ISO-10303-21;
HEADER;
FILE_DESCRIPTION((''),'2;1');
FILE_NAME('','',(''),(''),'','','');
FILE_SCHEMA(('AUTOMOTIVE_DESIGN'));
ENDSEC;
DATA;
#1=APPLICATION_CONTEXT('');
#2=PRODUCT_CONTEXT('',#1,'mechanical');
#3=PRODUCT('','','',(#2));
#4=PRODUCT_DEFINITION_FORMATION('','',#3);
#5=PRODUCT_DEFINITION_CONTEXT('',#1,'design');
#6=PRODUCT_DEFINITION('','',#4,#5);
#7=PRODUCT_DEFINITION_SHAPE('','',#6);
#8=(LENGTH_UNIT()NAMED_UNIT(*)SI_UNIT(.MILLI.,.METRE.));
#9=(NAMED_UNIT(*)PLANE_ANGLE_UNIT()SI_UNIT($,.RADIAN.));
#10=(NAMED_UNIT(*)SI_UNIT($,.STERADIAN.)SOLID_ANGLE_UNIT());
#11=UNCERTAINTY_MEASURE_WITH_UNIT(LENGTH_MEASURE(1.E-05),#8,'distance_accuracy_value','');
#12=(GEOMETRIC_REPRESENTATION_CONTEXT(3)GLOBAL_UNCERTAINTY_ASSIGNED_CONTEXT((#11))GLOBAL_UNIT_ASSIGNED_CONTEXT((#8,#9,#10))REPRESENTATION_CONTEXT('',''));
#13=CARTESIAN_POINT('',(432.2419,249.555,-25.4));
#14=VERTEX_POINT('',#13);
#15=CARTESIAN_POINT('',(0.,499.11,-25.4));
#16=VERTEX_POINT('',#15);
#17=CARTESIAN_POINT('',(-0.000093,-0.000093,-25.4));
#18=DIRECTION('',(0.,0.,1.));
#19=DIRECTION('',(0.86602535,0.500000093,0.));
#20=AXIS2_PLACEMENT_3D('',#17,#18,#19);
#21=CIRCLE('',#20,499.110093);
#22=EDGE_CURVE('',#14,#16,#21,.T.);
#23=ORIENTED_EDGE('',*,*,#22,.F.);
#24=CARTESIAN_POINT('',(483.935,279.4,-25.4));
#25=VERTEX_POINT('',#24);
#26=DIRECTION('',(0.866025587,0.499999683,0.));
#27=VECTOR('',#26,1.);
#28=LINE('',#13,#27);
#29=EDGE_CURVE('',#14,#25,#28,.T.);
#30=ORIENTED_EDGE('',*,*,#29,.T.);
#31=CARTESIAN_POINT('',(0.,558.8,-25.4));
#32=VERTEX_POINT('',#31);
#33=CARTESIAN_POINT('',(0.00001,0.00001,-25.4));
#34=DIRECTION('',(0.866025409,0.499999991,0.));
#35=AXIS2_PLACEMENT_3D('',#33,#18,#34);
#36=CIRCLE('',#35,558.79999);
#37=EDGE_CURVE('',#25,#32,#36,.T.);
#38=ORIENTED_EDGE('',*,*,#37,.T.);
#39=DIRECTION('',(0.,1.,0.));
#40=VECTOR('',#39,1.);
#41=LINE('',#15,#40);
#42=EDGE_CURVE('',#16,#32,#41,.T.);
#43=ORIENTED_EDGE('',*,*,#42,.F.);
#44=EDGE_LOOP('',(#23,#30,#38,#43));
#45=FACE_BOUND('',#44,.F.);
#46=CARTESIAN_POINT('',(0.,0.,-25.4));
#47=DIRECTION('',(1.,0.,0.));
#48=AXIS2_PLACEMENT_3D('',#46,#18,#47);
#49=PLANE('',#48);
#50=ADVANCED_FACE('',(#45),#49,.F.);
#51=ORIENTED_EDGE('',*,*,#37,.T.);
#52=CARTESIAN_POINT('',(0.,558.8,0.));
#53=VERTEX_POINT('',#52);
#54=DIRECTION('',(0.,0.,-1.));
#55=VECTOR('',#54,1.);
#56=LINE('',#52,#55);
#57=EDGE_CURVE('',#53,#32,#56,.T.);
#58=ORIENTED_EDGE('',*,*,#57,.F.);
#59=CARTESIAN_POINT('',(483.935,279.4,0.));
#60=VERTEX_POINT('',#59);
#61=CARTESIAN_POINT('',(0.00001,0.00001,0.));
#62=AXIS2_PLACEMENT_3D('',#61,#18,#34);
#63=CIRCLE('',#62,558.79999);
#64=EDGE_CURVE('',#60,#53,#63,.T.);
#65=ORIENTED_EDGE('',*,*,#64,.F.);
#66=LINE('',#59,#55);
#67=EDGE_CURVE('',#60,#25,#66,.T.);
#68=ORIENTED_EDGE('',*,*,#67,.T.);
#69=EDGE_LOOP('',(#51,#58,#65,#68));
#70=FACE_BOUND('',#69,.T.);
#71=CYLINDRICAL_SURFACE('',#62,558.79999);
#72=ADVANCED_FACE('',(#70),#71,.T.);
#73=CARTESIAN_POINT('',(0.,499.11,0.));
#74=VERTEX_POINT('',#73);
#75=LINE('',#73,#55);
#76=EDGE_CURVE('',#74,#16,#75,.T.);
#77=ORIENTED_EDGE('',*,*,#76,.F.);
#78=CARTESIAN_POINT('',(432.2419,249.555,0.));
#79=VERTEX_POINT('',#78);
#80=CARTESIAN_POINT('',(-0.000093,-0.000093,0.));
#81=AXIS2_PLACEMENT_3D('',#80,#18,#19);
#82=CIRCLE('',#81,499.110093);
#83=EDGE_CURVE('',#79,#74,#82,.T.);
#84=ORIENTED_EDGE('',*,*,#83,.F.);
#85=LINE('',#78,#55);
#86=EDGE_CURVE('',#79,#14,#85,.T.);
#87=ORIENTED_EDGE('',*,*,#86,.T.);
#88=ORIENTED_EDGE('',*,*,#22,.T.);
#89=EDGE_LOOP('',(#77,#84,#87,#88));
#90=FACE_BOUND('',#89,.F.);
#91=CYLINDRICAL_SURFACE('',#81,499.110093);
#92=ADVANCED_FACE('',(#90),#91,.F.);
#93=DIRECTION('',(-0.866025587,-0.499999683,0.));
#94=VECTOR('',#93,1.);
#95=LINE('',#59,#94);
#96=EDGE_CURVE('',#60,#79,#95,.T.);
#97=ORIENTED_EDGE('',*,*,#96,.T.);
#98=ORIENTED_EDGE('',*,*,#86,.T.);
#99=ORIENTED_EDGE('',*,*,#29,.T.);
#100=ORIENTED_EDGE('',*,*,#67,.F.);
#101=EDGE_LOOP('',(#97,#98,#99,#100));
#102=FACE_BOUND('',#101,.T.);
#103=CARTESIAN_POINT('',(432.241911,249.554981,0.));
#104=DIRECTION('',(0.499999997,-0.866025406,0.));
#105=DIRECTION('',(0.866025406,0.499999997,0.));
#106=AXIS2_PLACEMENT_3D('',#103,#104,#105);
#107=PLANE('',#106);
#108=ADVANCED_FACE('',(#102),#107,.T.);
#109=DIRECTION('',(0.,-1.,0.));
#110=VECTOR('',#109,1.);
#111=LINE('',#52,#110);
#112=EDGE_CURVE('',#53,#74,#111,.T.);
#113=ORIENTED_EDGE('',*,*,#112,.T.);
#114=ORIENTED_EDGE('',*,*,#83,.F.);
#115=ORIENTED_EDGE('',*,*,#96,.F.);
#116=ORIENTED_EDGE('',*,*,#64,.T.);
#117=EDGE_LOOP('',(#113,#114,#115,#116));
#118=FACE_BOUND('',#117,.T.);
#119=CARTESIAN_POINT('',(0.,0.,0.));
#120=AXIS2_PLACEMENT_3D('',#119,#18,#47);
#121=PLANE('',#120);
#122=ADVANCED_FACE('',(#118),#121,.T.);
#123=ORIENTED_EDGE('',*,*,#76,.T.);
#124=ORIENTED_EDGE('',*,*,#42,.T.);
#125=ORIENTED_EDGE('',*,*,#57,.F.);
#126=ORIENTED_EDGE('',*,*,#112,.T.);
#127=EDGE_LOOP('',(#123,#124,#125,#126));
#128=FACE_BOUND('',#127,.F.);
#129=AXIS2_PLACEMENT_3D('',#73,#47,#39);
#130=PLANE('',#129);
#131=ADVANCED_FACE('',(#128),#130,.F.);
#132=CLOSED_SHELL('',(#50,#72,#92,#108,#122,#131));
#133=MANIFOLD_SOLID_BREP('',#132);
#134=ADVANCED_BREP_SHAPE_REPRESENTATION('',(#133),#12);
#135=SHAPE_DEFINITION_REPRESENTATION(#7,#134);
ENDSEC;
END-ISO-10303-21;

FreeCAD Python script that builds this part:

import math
import FreeCAD as App
import Part
import Sketcher
from FreeCAD import Vector
Q = App.Units.Quantity

doc = App.newDocument("Part")
body = doc.addObject("PartDesign::Body", "Body")

# Sketch on XY plane
sketch1 = body.newObject("Sketcher::SketchObject", "Sketch")
sketch1.AttachmentSupport = (doc.getObject("XY_Plane"), [""])
sketch1.MapMode = "FlatFace"
sketch1.addGeometry(Part.LineSegment(Vector(432.2419, 249.555, 0), Vector(483.935, 279.4, 0)), False)
sketch1.addGeometry(Part.ArcOfCircle(Part.Circle(Vector(0, 0, 0), Vector(0, 0, 1), 558.800004), math.radians(30), math.radians(90)), False)
sketch1.addGeometry(Part.LineSegment(Vector(0, 558.8, 0), Vector(0, 499.11, 0)), False)
sketch1.addGeometry(Part.ArcOfCircle(Part.Circle(Vector(0, 0, 0), Vector(0, 0, 1), 499.109966), math.radians(30.000002), math.radians(90)), False)
sketch1.addConstraint(Sketcher.Constraint("Coincident", 0, 2, 1, 1))
sketch1.addConstraint(Sketcher.Constraint("Coincident", 1, 2, 2, 1))
sketch1.addConstraint(Sketcher.Constraint("Coincident", 2, 2, 3, 2))
sketch1.addConstraint(Sketcher.Constraint("Coincident", 3, 1, 0, 1))
sketch1.addConstraint(Sketcher.Constraint("Vertical", 2))
sketch1.addConstraint(Sketcher.Constraint("Coincident", 1, 3, -1, 1))
sketch1.addConstraint(Sketcher.Constraint("Coincident", 3, 3, -1, 1))
sketch1.addConstraint(Sketcher.Constraint("PointOnObject", 2, 2, -2))
sketch1.addConstraint(Sketcher.Constraint("Radius", 1, Q("22 in")))
sketch1.addConstraint(Sketcher.Constraint("Radius", 3, Q("19.65 in")))
sketch1.addConstraint(Sketcher.Constraint("DistanceY", -1, 1, 0, 2, Q("11 in")))
sketch1.addConstraint(Sketcher.Constraint("Angle", 0, Q("30 deg")))
pad1 = body.newObject("PartDesign::Pad", "Pad")
pad1.Profile = sketch1
pad1.Length = Q("1 in")
pad1.Reversed = True

doc.recompute()
